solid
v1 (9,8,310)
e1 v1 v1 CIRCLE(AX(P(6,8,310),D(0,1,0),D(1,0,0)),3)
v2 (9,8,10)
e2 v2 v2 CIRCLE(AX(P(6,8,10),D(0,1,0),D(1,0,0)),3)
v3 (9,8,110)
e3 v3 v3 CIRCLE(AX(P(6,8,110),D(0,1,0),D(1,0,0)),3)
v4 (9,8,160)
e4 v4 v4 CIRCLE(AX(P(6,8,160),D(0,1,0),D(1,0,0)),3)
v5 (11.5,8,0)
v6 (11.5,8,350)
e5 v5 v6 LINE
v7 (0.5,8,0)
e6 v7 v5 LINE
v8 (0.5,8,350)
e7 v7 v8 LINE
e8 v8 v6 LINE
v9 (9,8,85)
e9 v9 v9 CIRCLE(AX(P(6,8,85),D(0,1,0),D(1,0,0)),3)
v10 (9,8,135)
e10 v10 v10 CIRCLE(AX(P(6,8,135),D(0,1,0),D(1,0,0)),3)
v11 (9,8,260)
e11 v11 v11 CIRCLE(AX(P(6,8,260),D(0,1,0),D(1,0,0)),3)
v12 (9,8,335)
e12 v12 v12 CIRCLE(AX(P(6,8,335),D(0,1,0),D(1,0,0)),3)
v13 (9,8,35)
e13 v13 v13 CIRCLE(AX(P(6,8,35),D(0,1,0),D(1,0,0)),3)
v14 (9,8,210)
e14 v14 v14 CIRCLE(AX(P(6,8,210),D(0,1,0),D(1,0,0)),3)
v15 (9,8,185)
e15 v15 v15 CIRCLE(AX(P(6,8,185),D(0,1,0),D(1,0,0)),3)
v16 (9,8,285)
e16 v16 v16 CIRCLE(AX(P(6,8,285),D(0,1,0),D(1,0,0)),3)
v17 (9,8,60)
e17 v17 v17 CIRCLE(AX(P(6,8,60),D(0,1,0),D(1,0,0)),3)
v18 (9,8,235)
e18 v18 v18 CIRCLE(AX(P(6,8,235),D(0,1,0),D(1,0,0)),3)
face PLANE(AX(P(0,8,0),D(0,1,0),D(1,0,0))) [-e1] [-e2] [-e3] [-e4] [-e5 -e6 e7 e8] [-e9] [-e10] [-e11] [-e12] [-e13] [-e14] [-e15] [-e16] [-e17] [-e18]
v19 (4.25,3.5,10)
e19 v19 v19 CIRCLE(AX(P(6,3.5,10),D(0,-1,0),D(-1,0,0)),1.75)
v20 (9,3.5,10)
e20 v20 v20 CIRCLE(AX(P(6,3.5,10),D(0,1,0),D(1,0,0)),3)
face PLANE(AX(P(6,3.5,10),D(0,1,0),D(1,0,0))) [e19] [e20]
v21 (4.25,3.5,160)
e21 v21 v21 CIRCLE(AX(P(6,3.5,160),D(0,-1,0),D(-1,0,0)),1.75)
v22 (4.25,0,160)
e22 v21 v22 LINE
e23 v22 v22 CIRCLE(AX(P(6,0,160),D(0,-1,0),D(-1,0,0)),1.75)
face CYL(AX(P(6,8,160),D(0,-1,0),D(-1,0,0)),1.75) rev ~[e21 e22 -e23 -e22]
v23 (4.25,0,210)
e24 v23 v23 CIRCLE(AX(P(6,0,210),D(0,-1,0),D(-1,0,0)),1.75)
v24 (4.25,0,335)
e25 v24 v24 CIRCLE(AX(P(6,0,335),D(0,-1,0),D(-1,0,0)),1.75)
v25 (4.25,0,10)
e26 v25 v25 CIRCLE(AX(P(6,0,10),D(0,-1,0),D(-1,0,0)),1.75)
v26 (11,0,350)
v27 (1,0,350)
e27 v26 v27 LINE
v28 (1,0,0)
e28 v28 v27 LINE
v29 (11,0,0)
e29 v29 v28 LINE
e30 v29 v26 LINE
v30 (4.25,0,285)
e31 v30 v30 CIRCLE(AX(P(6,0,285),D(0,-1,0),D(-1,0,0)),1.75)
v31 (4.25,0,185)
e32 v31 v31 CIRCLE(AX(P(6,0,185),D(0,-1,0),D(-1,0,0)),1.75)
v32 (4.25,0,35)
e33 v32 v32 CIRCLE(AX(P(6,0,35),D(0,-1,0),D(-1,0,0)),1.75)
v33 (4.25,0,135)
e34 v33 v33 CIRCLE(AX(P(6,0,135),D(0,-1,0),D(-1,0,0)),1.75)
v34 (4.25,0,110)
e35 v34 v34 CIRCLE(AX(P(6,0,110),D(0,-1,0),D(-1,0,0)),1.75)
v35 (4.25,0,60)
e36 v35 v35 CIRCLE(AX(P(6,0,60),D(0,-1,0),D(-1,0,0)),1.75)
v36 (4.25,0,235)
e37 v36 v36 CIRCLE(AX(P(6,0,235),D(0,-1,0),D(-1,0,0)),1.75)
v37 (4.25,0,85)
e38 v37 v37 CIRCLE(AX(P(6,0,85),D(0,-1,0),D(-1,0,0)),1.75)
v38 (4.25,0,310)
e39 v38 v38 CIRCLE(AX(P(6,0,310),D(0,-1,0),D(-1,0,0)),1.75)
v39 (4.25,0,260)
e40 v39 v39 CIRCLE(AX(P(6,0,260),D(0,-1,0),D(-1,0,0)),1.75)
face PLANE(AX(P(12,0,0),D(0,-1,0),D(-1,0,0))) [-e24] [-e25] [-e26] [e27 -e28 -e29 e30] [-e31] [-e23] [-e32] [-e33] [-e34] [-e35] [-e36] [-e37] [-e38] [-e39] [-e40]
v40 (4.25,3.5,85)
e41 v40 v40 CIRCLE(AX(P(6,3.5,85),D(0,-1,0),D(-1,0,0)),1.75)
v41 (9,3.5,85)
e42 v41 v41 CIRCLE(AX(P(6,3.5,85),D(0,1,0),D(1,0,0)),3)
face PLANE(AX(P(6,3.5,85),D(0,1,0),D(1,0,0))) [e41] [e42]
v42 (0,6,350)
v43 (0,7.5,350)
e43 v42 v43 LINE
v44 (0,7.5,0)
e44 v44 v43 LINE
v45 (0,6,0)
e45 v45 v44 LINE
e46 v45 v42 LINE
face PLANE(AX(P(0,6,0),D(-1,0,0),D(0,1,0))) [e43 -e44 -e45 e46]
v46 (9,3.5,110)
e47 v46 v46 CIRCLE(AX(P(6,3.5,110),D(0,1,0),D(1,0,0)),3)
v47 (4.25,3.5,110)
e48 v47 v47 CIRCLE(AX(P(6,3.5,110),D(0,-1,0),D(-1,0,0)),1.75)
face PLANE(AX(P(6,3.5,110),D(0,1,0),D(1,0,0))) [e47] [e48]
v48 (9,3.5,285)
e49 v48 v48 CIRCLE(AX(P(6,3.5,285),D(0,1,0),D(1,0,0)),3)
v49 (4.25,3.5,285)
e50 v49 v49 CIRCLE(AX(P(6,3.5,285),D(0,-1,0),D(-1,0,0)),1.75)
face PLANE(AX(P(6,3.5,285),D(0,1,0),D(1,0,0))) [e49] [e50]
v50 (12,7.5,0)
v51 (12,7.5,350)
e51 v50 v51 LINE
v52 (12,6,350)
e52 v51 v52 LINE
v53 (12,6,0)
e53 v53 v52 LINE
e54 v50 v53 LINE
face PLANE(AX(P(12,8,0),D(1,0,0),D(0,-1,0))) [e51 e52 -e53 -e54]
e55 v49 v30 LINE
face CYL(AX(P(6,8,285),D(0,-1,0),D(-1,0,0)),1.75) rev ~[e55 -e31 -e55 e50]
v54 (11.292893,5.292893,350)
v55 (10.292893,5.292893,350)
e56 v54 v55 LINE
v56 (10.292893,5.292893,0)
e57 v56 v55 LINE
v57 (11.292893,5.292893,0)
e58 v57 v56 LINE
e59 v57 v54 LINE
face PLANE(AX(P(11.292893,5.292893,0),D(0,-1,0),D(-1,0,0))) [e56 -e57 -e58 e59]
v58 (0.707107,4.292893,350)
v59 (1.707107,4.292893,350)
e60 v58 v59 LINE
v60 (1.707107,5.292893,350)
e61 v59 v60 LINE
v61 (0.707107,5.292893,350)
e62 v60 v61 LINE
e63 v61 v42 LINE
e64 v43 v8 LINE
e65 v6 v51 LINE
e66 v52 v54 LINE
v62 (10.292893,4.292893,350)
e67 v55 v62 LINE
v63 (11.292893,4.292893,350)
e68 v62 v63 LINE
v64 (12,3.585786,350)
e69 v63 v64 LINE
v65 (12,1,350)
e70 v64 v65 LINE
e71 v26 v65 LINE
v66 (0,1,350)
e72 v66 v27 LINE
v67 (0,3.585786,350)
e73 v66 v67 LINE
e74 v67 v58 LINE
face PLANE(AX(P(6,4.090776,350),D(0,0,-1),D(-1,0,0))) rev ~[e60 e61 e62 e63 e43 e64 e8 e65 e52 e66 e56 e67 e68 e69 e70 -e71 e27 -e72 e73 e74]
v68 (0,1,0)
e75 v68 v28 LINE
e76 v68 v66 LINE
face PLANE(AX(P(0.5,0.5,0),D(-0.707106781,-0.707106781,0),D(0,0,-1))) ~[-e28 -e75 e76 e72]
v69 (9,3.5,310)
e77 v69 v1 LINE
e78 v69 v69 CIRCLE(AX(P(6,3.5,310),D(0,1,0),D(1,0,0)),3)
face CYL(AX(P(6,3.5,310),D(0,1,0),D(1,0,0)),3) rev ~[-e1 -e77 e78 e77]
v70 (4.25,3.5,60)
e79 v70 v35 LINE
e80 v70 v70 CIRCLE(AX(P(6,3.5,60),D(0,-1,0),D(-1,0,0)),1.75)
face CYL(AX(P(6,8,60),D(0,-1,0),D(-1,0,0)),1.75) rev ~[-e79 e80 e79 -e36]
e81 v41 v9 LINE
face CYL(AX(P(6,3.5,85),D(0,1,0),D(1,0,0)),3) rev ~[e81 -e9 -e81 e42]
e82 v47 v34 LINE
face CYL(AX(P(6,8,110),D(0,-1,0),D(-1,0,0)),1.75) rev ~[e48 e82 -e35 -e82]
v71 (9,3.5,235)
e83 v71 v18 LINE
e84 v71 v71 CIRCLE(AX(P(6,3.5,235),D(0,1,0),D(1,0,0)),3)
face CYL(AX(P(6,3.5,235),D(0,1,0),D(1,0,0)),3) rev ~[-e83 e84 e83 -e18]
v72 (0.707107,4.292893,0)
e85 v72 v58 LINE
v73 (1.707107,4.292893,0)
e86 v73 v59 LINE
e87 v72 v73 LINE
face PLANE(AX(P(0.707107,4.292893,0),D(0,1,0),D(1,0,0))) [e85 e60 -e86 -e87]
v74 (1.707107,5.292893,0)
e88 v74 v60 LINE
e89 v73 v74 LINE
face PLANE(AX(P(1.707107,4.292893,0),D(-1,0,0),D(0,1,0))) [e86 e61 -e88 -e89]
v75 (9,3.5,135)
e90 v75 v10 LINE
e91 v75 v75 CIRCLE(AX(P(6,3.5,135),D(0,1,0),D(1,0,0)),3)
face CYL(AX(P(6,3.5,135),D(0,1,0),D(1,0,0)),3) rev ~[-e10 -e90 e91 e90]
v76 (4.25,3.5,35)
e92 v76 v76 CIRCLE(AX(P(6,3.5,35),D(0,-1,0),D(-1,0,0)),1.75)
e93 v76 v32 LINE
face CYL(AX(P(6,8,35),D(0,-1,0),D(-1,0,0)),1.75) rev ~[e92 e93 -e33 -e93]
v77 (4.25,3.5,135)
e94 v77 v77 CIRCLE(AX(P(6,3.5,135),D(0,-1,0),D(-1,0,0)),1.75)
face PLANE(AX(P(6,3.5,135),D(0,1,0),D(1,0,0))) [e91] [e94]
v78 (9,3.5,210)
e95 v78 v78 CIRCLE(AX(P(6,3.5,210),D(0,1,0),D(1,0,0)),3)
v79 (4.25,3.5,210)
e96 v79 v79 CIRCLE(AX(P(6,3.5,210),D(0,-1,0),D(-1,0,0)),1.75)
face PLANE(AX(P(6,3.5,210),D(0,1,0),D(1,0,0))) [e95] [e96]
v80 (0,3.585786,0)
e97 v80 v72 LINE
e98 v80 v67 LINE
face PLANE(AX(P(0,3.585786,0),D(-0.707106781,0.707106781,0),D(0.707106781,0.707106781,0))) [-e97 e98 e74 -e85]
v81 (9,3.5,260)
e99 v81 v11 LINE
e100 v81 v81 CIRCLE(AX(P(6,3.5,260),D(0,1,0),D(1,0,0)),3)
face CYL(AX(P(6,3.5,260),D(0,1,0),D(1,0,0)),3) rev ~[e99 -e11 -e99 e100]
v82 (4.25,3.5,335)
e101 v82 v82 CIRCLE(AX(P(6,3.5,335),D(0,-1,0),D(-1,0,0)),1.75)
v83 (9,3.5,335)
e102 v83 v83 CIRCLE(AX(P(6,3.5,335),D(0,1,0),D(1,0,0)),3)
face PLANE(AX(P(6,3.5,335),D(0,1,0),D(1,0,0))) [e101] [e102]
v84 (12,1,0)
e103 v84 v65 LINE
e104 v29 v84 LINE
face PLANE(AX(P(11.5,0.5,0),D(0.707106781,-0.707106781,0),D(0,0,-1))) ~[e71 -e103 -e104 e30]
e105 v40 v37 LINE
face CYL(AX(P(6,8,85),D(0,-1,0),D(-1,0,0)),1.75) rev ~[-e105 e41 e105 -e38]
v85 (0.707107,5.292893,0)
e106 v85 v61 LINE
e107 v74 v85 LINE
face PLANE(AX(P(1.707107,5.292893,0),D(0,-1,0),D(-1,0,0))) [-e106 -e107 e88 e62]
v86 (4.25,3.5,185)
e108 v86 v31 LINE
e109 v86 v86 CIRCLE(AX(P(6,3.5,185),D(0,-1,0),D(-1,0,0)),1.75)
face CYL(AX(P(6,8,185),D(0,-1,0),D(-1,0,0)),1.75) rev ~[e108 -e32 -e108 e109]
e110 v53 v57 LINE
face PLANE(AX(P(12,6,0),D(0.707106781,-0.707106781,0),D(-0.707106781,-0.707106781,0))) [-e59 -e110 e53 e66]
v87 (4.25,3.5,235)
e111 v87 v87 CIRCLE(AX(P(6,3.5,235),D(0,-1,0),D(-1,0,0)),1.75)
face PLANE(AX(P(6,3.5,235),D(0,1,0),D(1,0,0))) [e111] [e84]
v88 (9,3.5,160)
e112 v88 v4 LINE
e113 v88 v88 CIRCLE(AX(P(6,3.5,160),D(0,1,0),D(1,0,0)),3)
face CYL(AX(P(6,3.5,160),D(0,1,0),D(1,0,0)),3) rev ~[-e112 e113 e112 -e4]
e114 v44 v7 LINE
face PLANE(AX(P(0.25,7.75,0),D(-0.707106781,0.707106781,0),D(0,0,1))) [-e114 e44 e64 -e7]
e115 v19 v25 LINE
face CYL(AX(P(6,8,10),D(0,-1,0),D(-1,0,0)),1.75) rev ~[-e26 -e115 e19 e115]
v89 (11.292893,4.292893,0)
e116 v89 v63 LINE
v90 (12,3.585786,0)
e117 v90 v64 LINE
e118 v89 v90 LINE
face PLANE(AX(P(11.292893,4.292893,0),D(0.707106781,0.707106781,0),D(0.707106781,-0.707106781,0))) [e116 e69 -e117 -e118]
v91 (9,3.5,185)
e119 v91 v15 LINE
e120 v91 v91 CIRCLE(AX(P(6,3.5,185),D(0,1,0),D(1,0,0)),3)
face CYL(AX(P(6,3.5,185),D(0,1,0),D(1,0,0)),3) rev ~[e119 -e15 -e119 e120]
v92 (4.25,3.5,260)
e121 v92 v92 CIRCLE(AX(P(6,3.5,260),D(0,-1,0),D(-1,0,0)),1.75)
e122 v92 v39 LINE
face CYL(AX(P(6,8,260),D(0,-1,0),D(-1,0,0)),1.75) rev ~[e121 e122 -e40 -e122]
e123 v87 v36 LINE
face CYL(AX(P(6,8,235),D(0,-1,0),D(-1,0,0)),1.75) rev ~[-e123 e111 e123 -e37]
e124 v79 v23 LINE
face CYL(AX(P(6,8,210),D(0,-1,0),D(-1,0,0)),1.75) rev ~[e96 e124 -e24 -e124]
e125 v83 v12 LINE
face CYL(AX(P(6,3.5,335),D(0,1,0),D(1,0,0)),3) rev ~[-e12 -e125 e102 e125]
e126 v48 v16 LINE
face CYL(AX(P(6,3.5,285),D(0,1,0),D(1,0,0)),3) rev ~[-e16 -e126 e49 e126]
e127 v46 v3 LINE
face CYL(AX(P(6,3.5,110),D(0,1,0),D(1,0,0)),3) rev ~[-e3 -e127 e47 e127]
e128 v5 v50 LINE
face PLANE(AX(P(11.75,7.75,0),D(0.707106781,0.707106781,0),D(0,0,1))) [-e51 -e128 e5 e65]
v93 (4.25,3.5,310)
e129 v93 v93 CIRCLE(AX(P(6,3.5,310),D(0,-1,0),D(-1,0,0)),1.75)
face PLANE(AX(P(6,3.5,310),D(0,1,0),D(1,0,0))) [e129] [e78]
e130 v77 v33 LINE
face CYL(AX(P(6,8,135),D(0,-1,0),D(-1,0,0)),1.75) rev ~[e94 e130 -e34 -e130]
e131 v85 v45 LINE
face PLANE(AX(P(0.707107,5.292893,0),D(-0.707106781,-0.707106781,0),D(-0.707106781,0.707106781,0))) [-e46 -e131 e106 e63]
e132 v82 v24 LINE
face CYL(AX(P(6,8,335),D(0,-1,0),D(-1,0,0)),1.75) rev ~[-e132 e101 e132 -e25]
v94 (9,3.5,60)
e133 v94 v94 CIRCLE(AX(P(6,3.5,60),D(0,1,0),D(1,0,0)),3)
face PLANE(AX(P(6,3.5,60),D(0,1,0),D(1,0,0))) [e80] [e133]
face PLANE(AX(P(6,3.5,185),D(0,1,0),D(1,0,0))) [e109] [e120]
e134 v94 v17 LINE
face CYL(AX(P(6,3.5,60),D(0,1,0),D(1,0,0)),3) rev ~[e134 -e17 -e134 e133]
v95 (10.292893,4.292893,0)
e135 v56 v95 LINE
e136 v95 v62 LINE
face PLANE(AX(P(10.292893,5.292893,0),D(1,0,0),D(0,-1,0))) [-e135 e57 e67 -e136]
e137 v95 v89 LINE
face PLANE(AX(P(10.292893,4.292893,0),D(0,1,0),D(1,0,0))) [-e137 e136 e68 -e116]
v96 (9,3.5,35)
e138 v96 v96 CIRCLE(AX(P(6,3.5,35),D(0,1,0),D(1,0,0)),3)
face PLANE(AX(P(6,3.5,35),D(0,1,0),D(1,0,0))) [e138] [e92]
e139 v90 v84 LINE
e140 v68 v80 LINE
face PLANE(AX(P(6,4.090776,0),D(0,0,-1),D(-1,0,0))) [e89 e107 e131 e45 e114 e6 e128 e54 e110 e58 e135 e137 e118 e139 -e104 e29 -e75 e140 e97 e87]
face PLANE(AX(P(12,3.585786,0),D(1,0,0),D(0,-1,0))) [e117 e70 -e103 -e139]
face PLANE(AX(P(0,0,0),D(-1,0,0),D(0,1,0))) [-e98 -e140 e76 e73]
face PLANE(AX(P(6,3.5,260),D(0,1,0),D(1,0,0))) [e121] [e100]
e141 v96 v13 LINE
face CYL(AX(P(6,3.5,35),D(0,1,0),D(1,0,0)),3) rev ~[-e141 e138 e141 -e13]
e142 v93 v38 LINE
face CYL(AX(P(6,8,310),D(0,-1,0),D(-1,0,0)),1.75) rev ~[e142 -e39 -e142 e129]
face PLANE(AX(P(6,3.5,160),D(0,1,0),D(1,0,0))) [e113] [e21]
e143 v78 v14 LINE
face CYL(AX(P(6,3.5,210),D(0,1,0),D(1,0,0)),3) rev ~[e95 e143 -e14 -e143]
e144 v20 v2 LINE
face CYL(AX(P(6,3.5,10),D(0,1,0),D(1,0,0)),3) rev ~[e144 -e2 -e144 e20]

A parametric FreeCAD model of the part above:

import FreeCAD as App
import Part
import Sketcher


def edges_at(feature, points):
    """Names of the edges that pass closest to the given points."""
    edges = feature.Shape.Edges
    near = lambda p: min(range(len(edges)), key=lambda i: edges[i].distToShape(Part.Vertex(*p))[0])
    return sorted({f"Edge{near(p) + 1}" for p in points})


def add_polygon(sketch, points):
    """Adds a closed chain of lines whose ends are joined by coincident constraints."""
    first, n = sketch.GeometryCount, len(points)
    for a, b in zip(points, points[1:] + points[:1]):
        sketch.addGeometry(Part.LineSegment(App.Vector(*a, 0), App.Vector(*b, 0)), False)
    for i in range(n):
        sketch.addConstraint(Sketcher.Constraint("Coincident", first + i, 2, first + (i + 1) % n, 1))

doc = App.newDocument("Part")
params = doc.addObject("Spreadsheet::Sheet", "Params")
for row, (alias, value) in enumerate([
    ("sketch1_width", "12 mm"),
    ("sketch1_width2", "1 mm"),
    ("sketch1_height", "2 mm"),
    ("sketch1_length", "1 mm"),
    ("pad1_length", "350 mm"),
    ("sketch2_diameter", "3.5 mm"),
    ("hole_diameter", "3.5 mm"),
    ("hole_depth", "9.921567 mm"),
    ("hole_cbore_diameter", "6 mm"),
    ("hole_cbore_depth", "4.5 mm"),
    ("linearpattern_pitch", "25 mm"),
    ("chamfer_size", "0.5 mm"),
    ("chamfer2_size", "1 mm"),
], start=1):
    params.set(f"A{row}", alias)
    params.set(f"B{row}", "=" + value)
    params.setAlias(f"B{row}", alias)

body = doc.addObject("PartDesign::Body", "Body")

# Sketch on XY plane
sketch1 = doc.addObject("Sketcher::SketchObject", "Sketch")
body.addObject(sketch1)
sketch1.AttachmentSupport = (doc.XY_Plane, [""])
sketch1.MapMode = "FlatFace"
add_polygon(sketch1, [(0, 3.6), (0, 0), (12, 0), (12, 3.6), (11.3, 4.3), (10.3, 4.3), (10.3, 5.3), (11.3, 5.3), (12, 6), (12, 8), (0, 8), (0, 6), (0.7, 5.3), (1.7, 5.3), (1.7, 4.3), (0.7, 4.3)])  # lines 0-15
sketch1.addConstraint([
    Sketcher.Constraint("Vertical", 0),
    Sketcher.Constraint("Horizontal", 1),
    Sketcher.Constraint("Vertical", 2),
    Sketcher.Constraint("Horizontal", 4),
    Sketcher.Constraint("Vertical", 5),
    Sketcher.Constraint("Horizontal", 6),
    Sketcher.Constraint("Vertical", 8),
    Sketcher.Constraint("Horizontal", 9),
    Sketcher.Constraint("Vertical", 10),
    Sketcher.Constraint("Horizontal", 12),
    Sketcher.Constraint("Vertical", 13),
    Sketcher.Constraint("Horizontal", 14),
    Sketcher.Constraint("Coincident", 0, 2, -1, 1),
    Sketcher.Constraint("PointOnObject", 9, 2, -2),
    Sketcher.Constraint("Perpendicular", 3, 7),
    Sketcher.Constraint("Perpendicular", 7, 11),
    Sketcher.Constraint("Perpendicular", 11, 15),
    Sketcher.Constraint("Horizontal", 7, 2, 10, 2),
    Sketcher.Constraint("Horizontal", 6, 2, 11, 2),
    Sketcher.Constraint("Horizontal", 4, 2, 13, 2),
    Sketcher.Constraint("Horizontal", 2, 2, 15, 2),
    Sketcher.Constraint("Vertical", 3, 2, 6, 2),
    Sketcher.Constraint("Vertical", 2, 2, 7, 2),
    Sketcher.Constraint("Vertical", 11, 2, 14, 2),
    Sketcher.Constraint("Equal", 6, 12),
    Sketcher.Constraint("Equal", 14, 5),
    Sketcher.Constraint("DistanceX", 1, 1, 1, 2, 12.0),
    Sketcher.Constraint("DistanceX", 4, 2, 4, 1, 1.0),
    Sketcher.Constraint("DistanceY", 8, 1, 8, 2, 2.0),
    Sketcher.Constraint("Distance", 3, 1.0),
    Sketcher.Constraint("DistanceY", -1, 1, 7, 2, 6.0),
])
sketch1.setExpression("Constraints[42]", "Params.sketch1_width")
sketch1.setExpression("Constraints[43]", "Params.sketch1_width2")
sketch1.setExpression("Constraints[44]", "Params.sketch1_height")
sketch1.setExpression("Constraints[45]", "Params.sketch1_length")
pad1 = doc.addObject("PartDesign::Pad", "Pad")
body.addObject(pad1)
pad1.Profile = sketch1
pad1.setExpression("Length", "Params.pad1_length")

# Sketch on XZ plane
sketch2 = doc.addObject("Sketcher::SketchObject", "Sketch001")
body.addObject(sketch2)
sketch2.AttachmentSupport = (doc.XZ_Plane, [""])
sketch2.MapMode = "FlatFace"
sketch2.AttachmentOffset = App.Placement(App.Vector(0, 0, -8), App.Rotation())
sketch2.addGeometry(Part.Circle(App.Vector(6, 10, 0), App.Vector(0, 0, 1), 1.8), False)
sketch2.addConstraint([
    Sketcher.Constraint("Diameter", 0, 3.5),
    Sketcher.Constraint("DistanceX", -1, 1, 0, 3, 6.0),
    Sketcher.Constraint("DistanceY", -1, 1, 0, 3, 10.0),
])
sketch2.setExpression("Constraints[0]", "Params.sketch2_diameter")
doc.recompute()
hole = doc.addObject("PartDesign::Hole", "Hole")
body.addObject(hole)
hole.Profile = sketch2
hole.ThreadType = "None"
hole.setExpression("Diameter", "Params.hole_diameter")
hole.DepthType = "Dimension"
hole.setExpression("Depth", "Params.hole_depth")
hole.DrillPoint = "Flat"
hole.HoleCutType = "Counterbore"
hole.setExpression("HoleCutDiameter", "Params.hole_cbore_diameter")
hole.setExpression("HoleCutDepth", "Params.hole_cbore_depth")
hole.Reversed = True
doc.recompute()

linearpattern = doc.addObject("PartDesign::LinearPattern", "LinearPattern")
body.addObject(linearpattern)
linearpattern.Originals = [hole]
linearpattern.Direction = (doc.Z_Axis, [""])
linearpattern.Mode = "offset"
linearpattern.setExpression("Offset", "Params.linearpattern_pitch")
linearpattern.Occurrences = 14
body.Tip = linearpattern
doc.recompute()

chamfer = doc.addObject("PartDesign::Chamfer", "Chamfer")
body.addObject(chamfer)
chamfer.Base = (linearpattern, edges_at(linearpattern, [(12, 8, 175), (0, 8, 175)]))
chamfer.setExpression("Size", "Params.chamfer_size")
doc.recompute()

chamfer2 = doc.addObject("PartDesign::Chamfer", "Chamfer001")
body.addObject(chamfer2)
chamfer2.Base = (chamfer, edges_at(chamfer, [(0, 0, 175), (12, 0, 175)]))
chamfer2.setExpression("Size", "Params.chamfer2_size")

doc.recompute()
